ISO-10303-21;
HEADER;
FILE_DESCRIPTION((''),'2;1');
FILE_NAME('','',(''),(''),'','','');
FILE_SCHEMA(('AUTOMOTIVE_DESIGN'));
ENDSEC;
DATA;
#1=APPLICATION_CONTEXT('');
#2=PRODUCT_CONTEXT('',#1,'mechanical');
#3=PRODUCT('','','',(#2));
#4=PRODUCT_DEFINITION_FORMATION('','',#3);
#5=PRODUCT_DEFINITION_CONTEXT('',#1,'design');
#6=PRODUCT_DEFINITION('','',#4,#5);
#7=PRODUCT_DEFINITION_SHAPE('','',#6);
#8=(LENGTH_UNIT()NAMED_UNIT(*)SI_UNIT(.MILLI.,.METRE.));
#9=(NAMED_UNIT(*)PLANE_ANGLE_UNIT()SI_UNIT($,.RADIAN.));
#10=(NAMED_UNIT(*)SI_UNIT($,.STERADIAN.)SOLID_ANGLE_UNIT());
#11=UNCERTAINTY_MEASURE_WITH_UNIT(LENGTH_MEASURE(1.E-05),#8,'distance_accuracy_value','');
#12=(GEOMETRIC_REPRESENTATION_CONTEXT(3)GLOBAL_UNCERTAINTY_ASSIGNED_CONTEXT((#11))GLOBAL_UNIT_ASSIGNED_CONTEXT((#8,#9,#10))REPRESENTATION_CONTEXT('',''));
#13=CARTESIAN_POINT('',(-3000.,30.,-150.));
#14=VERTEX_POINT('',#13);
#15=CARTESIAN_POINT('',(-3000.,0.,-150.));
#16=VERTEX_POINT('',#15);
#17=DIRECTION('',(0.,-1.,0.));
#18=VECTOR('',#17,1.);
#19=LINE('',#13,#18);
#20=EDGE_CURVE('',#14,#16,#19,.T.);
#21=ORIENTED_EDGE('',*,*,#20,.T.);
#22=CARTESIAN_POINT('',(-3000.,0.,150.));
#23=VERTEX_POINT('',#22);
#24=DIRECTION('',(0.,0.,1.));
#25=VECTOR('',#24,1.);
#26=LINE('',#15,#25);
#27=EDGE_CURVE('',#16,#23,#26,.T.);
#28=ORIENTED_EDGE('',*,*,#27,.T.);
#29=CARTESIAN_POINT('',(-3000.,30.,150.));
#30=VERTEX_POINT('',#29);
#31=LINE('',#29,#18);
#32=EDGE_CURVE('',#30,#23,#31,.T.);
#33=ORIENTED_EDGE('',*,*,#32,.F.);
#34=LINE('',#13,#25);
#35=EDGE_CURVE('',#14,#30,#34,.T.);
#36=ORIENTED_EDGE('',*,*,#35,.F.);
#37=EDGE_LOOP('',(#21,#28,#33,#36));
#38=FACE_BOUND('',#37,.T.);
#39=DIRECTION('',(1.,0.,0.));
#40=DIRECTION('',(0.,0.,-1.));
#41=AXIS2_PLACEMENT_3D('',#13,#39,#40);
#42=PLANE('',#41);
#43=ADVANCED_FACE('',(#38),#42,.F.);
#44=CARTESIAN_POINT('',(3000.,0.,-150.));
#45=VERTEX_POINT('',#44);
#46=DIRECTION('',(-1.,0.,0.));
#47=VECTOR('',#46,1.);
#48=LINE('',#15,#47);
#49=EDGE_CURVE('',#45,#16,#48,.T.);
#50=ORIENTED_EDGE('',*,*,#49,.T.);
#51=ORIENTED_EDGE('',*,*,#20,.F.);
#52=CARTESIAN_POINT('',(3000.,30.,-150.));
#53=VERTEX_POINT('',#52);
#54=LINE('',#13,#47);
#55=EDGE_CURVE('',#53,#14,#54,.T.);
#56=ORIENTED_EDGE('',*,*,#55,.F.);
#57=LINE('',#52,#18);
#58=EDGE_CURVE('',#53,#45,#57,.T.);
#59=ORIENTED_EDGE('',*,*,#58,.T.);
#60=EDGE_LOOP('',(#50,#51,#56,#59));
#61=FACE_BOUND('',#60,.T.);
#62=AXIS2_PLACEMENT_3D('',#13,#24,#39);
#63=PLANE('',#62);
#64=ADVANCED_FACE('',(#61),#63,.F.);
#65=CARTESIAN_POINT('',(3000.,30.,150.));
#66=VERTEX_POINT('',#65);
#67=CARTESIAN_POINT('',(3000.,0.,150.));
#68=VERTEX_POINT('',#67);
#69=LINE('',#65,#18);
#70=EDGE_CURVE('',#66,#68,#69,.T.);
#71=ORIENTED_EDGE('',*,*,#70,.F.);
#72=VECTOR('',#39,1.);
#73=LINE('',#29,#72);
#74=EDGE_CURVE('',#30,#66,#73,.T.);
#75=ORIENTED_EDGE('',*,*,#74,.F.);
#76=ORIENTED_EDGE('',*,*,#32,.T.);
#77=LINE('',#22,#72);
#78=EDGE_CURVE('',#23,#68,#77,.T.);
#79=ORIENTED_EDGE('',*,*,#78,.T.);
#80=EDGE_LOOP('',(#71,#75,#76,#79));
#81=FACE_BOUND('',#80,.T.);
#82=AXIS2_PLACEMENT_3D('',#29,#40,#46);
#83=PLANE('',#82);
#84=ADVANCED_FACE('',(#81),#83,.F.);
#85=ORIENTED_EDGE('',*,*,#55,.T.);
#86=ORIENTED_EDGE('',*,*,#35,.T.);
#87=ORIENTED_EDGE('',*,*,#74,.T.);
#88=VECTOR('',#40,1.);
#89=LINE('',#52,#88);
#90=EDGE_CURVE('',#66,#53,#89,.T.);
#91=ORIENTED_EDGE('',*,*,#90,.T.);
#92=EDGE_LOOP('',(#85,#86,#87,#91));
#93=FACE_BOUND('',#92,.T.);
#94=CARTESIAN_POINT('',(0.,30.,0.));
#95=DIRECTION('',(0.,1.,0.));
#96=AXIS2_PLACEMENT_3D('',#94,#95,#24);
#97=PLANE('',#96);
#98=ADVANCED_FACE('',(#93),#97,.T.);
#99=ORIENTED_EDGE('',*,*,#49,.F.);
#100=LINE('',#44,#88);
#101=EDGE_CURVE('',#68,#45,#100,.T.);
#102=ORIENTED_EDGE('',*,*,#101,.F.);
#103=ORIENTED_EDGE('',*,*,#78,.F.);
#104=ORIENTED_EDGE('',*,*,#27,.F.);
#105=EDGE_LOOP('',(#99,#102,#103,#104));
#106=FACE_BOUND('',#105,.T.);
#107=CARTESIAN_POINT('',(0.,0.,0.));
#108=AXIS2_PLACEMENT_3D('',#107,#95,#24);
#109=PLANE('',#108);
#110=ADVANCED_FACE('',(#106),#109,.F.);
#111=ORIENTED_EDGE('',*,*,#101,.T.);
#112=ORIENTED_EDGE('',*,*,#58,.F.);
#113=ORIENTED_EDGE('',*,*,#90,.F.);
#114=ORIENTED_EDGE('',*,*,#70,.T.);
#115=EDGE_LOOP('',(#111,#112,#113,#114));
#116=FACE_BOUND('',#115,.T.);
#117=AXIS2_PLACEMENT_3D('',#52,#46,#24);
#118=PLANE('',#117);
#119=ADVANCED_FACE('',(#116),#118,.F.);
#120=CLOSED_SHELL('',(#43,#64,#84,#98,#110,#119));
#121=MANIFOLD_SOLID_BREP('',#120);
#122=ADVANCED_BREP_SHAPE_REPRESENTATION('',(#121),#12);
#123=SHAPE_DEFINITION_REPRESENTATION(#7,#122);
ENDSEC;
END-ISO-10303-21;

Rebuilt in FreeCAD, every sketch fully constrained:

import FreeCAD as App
import Part
import Sketcher

V = App.Vector
Q = App.Units.Quantity


def add_polygon(sketch, points):
    """Adds a closed chain of lines whose ends are joined by coincident constraints."""
    first, n = sketch.GeometryCount, len(points)
    for a, b in zip(points, points[1:] + points[:1]):
        sketch.addGeometry(Part.LineSegment(App.Vector(*a, 0), App.Vector(*b, 0)), False)
    for i in range(n):
        sketch.addConstraint(Sketcher.Constraint("Coincident", first + i, 2, first + (i + 1) % n, 1))

doc = App.newDocument("Part")
body = doc.addObject("PartDesign::Body", "Body")

# Sketch on XZ plane
sketch1 = body.newObject("Sketcher::SketchObject", "Sketch")
sketch1.AttachmentSupport = (doc.getObject("XZ_Plane"), [""])
sketch1.MapMode = "FlatFace"
add_polygon(sketch1, [(-3000, -150), (-3000, 150), (3000, 150), (3000, -150)])  # lines 0-3
sketch1.addConstraint([
    Sketcher.Constraint("Vertical", 0),
    Sketcher.Constraint("Horizontal", 1),
    Sketcher.Constraint("Vertical", 2),
    Sketcher.Constraint("Horizontal", 3),
    Sketcher.Constraint("Symmetric", 0, 2, 2, 2, -1, 1),
    Sketcher.Constraint("DistanceX", 1, 1, 1, 2, Q("6000 mm")),
    Sketcher.Constraint("DistanceY", 0, 1, 0, 2, Q("300 mm")),
])
pad1 = body.newObject("PartDesign::Pad", "Pad")
pad1.Profile = sketch1
pad1.Length = 30
pad1.Reversed = True

doc.recompute()
